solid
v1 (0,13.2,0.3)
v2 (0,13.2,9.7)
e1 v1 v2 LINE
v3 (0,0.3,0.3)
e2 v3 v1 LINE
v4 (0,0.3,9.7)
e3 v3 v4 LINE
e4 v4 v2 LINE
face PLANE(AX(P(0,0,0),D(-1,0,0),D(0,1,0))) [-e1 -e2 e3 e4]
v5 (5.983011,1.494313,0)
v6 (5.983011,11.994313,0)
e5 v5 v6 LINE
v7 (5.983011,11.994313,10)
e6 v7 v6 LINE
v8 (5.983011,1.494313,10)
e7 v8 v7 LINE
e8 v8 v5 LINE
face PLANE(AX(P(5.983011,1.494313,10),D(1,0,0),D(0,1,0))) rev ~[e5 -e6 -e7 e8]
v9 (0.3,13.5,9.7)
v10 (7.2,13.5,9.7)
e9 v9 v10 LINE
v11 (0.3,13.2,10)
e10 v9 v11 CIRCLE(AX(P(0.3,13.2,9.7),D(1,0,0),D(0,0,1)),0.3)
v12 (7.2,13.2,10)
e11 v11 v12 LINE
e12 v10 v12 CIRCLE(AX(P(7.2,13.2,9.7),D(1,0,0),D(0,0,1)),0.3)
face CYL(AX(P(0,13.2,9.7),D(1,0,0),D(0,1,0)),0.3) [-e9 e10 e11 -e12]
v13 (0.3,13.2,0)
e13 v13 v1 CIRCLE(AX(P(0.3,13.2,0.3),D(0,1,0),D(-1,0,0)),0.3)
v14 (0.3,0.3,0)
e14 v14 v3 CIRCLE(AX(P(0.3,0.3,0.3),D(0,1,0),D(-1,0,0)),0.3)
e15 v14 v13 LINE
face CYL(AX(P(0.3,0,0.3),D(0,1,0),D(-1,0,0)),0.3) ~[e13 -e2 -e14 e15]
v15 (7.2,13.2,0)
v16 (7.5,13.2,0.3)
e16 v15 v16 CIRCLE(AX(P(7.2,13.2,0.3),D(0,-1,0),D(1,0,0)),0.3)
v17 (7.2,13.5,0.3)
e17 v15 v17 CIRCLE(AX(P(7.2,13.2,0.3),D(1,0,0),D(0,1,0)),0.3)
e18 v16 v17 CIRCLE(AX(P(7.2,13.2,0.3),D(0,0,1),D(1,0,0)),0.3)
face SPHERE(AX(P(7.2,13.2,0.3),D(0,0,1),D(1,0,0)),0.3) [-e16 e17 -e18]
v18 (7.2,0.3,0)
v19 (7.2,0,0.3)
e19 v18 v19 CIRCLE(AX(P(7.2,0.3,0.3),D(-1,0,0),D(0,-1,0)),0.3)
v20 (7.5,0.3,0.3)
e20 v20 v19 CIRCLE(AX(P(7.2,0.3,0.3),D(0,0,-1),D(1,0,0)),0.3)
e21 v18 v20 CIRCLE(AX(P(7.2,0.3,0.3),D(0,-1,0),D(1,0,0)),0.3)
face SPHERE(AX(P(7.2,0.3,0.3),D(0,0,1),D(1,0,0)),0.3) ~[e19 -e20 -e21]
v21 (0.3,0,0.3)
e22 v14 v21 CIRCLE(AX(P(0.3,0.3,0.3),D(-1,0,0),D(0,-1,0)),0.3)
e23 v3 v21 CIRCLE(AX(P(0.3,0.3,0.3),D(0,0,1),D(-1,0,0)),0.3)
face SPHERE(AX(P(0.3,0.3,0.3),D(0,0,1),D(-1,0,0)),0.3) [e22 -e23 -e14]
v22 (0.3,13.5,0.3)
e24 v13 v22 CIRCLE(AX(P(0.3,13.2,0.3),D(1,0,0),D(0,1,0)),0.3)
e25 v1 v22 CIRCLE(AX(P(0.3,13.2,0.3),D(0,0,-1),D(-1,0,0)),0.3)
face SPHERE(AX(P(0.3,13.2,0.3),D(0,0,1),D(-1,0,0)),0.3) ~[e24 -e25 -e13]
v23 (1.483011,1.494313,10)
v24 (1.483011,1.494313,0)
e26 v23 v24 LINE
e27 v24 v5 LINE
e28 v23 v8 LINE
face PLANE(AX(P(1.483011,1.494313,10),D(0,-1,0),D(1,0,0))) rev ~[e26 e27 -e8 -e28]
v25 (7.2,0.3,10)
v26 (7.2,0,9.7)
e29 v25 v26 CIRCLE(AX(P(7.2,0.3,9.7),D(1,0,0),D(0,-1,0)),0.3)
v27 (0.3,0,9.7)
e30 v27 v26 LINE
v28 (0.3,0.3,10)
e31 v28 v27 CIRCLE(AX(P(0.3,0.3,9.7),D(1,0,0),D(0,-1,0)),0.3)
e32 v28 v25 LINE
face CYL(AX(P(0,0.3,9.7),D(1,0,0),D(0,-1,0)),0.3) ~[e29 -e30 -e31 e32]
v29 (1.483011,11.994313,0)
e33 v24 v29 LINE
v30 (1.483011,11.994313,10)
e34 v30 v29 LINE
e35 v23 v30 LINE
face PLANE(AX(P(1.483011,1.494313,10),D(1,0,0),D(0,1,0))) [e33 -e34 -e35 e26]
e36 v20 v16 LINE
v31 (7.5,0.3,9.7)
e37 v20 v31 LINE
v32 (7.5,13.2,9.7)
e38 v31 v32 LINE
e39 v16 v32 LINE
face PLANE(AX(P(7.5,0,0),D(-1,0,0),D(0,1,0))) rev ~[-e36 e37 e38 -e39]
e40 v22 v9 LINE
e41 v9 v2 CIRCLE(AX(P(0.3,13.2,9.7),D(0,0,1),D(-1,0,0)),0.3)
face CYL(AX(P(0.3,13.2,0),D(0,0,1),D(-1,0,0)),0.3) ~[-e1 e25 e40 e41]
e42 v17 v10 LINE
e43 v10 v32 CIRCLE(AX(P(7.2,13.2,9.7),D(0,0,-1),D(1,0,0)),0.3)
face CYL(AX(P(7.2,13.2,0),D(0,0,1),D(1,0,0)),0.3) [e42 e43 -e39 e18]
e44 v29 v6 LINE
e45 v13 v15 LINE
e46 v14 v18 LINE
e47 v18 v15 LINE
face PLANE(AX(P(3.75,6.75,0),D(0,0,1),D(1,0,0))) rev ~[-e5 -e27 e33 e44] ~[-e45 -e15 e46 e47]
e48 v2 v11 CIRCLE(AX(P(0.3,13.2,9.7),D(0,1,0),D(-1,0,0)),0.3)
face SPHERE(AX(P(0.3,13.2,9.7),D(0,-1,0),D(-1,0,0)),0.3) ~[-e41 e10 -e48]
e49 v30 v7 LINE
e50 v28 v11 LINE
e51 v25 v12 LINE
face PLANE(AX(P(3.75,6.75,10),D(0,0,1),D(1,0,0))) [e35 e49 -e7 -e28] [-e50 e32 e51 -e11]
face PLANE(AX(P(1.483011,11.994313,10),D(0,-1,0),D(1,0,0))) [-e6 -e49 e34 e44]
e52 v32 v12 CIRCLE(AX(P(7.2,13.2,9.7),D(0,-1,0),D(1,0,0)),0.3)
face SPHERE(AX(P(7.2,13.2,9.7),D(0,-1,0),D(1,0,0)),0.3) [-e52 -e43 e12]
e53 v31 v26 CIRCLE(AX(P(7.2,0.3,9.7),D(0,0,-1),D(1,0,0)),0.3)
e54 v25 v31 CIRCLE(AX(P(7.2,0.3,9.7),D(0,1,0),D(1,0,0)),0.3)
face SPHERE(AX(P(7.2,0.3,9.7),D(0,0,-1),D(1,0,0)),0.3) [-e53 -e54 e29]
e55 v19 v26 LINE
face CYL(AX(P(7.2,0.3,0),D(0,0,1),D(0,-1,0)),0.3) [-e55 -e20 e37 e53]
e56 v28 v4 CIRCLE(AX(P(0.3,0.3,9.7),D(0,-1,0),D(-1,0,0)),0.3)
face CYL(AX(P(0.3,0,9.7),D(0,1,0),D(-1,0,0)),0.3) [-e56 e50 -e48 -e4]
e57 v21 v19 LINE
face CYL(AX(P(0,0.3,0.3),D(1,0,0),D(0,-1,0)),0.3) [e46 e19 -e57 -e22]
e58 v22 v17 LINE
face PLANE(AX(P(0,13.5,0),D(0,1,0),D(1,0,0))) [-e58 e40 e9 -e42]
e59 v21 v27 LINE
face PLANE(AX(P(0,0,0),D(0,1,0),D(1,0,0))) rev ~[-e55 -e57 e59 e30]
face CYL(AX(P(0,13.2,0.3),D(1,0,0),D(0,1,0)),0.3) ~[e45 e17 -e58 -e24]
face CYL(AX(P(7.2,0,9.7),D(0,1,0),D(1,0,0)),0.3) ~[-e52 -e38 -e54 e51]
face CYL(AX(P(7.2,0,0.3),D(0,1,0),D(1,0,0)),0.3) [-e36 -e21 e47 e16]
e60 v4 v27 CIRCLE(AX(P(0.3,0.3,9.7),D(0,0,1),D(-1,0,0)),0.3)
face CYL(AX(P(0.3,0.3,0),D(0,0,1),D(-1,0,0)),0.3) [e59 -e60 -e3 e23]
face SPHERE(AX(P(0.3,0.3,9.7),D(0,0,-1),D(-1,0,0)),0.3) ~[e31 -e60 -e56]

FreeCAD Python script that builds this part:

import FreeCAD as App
import Part
import Sketcher

V = App.Vector
Q = App.Units.Quantity

doc = App.newDocument("Part")
body = doc.addObject("PartDesign::Body", "Body")

# Sketch on XY plane
sketch1 = body.newObject("Sketcher::SketchObject", "Sketch")
sketch1.AttachmentSupport = (doc.getObject("XY_Plane"), [""])
sketch1.MapMode = "FlatFace"
sketch1.addGeometry([
    Part.LineSegment(V(0, 13.5, 0), V(0, 0, 0)),
    Part.LineSegment(V(0, 0, 0), V(7.5, 0, 0)),
    Part.LineSegment(V(7.5, 0, 0), V(7.5, 13.5, 0)),
    Part.LineSegment(V(7.5, 13.5, 0), V(0, 13.5, 0)),
], False)
sketch1.addConstraint([
    Sketcher.Constraint("Coincident", 0, 2, 1, 1),
    Sketcher.Constraint("Coincident", 1, 2, 2, 1),
    Sketcher.Constraint("Coincident", 2, 2, 3, 1),
    Sketcher.Constraint("Coincident", 3, 2, 0, 1),
    Sketcher.Constraint("Vertical", 0),
    Sketcher.Constraint("Horizontal", 1),
    Sketcher.Constraint("Vertical", 2),
    Sketcher.Constraint("Horizontal", 3),
    Sketcher.Constraint("Coincident", 0, 2, -1, 1),
    Sketcher.Constraint("DistanceX", 1, 1, 1, 2, Q("7.5 mm")),
    Sketcher.Constraint("DistanceY", 0, 2, 0, 1, Q("13.5 mm")),
])
pad1 = body.newObject("PartDesign::Pad", "Pad")
pad1.Profile = sketch1
pad1.Length = 10
doc.recompute()

fillet = body.newObject("PartDesign::Fillet", "Fillet")
fillet.Base = (pad1, ["Edge1"])
fillet.UseAllEdges = True
fillet.Radius = 0.3

# Sketch on XY plane
sketch2 = body.newObject("Sketcher::SketchObject", "Sketch001")
sketch2.AttachmentSupport = (doc.getObject("XY_Plane"), [""])
sketch2.MapMode = "FlatFace"
sketch2.AttachmentOffset = App.Placement(V(0, 0, 10), App.Rotation())
sketch2.addGeometry([
    Part.LineSegment(V(1.483011, 11.994313, 0), V(1.483011, 1.494313, 0)),
    Part.LineSegment(V(1.483011, 1.494313, 0), V(5.983011, 1.494313, 0)),
    Part.LineSegment(V(5.983011, 1.494313, 0), V(5.983011, 11.994313, 0)),
    Part.LineSegment(V(5.983011, 11.994313, 0), V(1.483011, 11.994313, 0)),
], False)
sketch2.addConstraint([
    Sketcher.Constraint("Coincident", 0, 2, 1, 1),
    Sketcher.Constraint("Coincident", 1, 2, 2, 1),
    Sketcher.Constraint("Coincident", 2, 2, 3, 1),
    Sketcher.Constraint("Coincident", 3, 2, 0, 1),
    Sketcher.Constraint("Vertical", 0),
    Sketcher.Constraint("Horizontal", 1),
    Sketcher.Constraint("Vertical", 2),
    Sketcher.Constraint("Horizontal", 3),
    Sketcher.Constraint("DistanceX", 1, 1, 1, 2, Q("4.5 mm")),
    Sketcher.Constraint("DistanceY", 0, 2, 0, 1, Q("10.5 mm")),
    Sketcher.Constraint("DistanceX", -1, 1, 0, 2, Q("1.483011 mm")),
    Sketcher.Constraint("DistanceY", -1, 1, 0, 2, Q("1.494313 mm")),
])
pocket1 = body.newObject("PartDesign::Pocket", "Pocket")
pocket1.Profile = sketch2
pocket1.Length = 10

doc.recompute()
